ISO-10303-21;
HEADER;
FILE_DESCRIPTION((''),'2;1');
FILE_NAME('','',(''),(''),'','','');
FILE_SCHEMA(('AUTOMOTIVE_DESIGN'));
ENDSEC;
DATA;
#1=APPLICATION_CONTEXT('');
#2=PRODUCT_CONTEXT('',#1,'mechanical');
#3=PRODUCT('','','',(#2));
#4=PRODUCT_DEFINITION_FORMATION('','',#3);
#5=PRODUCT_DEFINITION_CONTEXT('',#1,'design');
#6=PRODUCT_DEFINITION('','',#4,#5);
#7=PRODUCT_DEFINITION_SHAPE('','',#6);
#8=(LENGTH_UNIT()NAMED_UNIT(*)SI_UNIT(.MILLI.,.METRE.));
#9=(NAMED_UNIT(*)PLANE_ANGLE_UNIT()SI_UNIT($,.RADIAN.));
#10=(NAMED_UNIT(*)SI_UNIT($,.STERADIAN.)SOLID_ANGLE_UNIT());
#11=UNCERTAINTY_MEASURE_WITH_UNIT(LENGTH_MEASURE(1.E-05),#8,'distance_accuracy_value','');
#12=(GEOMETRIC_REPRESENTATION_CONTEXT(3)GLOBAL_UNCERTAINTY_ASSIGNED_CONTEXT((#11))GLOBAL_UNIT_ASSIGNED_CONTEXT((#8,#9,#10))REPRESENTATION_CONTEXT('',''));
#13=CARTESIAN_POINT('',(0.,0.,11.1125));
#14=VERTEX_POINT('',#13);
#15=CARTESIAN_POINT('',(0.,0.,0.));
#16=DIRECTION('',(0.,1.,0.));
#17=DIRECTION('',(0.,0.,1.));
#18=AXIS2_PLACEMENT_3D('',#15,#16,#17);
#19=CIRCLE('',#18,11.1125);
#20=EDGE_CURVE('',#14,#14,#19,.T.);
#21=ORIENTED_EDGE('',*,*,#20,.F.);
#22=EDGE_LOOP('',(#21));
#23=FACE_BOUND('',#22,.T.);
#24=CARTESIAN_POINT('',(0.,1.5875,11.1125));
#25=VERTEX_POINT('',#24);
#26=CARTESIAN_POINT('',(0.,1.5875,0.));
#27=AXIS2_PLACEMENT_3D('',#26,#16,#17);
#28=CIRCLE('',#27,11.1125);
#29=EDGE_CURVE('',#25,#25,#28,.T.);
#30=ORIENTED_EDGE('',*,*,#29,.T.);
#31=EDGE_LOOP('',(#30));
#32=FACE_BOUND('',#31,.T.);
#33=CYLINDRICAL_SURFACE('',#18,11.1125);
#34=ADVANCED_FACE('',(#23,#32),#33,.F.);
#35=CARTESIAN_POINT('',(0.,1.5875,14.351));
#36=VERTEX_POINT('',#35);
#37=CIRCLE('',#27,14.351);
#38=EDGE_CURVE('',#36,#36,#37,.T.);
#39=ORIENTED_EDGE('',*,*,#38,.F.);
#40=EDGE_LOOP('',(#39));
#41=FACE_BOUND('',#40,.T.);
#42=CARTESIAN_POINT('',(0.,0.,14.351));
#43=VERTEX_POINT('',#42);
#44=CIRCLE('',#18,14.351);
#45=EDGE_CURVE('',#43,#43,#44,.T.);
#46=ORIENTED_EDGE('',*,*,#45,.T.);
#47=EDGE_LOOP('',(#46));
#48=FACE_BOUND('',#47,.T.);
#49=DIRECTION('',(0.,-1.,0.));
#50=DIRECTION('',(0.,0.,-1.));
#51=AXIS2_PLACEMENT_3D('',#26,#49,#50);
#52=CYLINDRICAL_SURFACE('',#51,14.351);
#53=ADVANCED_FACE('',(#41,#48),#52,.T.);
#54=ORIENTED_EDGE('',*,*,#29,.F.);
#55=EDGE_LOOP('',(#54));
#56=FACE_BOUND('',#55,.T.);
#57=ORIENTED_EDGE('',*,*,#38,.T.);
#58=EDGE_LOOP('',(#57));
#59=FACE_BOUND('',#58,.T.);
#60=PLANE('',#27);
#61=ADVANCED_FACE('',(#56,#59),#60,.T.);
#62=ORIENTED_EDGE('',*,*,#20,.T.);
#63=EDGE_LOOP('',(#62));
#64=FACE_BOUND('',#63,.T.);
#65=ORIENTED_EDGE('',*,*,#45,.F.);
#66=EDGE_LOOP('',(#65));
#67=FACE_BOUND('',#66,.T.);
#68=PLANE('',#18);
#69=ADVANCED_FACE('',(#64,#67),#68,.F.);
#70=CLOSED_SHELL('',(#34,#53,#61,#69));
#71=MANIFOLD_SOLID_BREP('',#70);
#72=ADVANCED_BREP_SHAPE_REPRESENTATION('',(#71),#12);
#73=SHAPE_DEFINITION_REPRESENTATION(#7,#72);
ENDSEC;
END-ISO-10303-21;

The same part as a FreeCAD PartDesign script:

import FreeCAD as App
import Part
import Sketcher
from FreeCAD import Vector
Q = App.Units.Quantity

doc = App.newDocument("Part")
body = doc.addObject("PartDesign::Body", "Body")

# Sketch on XZ plane
sketch1 = body.newObject("Sketcher::SketchObject", "Sketch")
sketch1.AttachmentSupport = (doc.getObject("XZ_Plane"), [""])
sketch1.MapMode = "FlatFace"
sketch1.addGeometry(Part.Circle(Vector(0, 0, 0), Vector(0, 0, 1), 14), False)
sketch1.addConstraint([
    Sketcher.Constraint("Coincident", 0, 3, -1, 1),
    Sketcher.Constraint("Diameter", 0, Q("1.13 in")),
])
pad1 = body.newObject("PartDesign::Pad", "Pad")
pad1.Profile = sketch1
pad1.Length = Q("0.0625 in")
pad1.Reversed = True

# Sketch on XZ plane
sketch2 = body.newObject("Sketcher::SketchObject", "Sketch001")
sketch2.AttachmentSupport = (doc.getObject("XZ_Plane"), [""])
sketch2.MapMode = "FlatFace"
sketch2.AttachmentOffset = App.Placement(Vector(0, 0, -0.0625 * 25.4), App.Rotation())
sketch2.addGeometry(Part.Circle(Vector(0, 0, 0), Vector(0, 0, 1), 11), False)
sketch2.addConstraint([
    Sketcher.Constraint("Coincident", 0, 3, -1, 1),
    Sketcher.Constraint("Diameter", 0, Q("0.875 in")),
])
pocket1 = body.newObject("PartDesign::Pocket", "Pocket")
pocket1.Profile = sketch2
pocket1.Type = "ThroughAll"
pocket1.Reversed = True

doc.recompute()
